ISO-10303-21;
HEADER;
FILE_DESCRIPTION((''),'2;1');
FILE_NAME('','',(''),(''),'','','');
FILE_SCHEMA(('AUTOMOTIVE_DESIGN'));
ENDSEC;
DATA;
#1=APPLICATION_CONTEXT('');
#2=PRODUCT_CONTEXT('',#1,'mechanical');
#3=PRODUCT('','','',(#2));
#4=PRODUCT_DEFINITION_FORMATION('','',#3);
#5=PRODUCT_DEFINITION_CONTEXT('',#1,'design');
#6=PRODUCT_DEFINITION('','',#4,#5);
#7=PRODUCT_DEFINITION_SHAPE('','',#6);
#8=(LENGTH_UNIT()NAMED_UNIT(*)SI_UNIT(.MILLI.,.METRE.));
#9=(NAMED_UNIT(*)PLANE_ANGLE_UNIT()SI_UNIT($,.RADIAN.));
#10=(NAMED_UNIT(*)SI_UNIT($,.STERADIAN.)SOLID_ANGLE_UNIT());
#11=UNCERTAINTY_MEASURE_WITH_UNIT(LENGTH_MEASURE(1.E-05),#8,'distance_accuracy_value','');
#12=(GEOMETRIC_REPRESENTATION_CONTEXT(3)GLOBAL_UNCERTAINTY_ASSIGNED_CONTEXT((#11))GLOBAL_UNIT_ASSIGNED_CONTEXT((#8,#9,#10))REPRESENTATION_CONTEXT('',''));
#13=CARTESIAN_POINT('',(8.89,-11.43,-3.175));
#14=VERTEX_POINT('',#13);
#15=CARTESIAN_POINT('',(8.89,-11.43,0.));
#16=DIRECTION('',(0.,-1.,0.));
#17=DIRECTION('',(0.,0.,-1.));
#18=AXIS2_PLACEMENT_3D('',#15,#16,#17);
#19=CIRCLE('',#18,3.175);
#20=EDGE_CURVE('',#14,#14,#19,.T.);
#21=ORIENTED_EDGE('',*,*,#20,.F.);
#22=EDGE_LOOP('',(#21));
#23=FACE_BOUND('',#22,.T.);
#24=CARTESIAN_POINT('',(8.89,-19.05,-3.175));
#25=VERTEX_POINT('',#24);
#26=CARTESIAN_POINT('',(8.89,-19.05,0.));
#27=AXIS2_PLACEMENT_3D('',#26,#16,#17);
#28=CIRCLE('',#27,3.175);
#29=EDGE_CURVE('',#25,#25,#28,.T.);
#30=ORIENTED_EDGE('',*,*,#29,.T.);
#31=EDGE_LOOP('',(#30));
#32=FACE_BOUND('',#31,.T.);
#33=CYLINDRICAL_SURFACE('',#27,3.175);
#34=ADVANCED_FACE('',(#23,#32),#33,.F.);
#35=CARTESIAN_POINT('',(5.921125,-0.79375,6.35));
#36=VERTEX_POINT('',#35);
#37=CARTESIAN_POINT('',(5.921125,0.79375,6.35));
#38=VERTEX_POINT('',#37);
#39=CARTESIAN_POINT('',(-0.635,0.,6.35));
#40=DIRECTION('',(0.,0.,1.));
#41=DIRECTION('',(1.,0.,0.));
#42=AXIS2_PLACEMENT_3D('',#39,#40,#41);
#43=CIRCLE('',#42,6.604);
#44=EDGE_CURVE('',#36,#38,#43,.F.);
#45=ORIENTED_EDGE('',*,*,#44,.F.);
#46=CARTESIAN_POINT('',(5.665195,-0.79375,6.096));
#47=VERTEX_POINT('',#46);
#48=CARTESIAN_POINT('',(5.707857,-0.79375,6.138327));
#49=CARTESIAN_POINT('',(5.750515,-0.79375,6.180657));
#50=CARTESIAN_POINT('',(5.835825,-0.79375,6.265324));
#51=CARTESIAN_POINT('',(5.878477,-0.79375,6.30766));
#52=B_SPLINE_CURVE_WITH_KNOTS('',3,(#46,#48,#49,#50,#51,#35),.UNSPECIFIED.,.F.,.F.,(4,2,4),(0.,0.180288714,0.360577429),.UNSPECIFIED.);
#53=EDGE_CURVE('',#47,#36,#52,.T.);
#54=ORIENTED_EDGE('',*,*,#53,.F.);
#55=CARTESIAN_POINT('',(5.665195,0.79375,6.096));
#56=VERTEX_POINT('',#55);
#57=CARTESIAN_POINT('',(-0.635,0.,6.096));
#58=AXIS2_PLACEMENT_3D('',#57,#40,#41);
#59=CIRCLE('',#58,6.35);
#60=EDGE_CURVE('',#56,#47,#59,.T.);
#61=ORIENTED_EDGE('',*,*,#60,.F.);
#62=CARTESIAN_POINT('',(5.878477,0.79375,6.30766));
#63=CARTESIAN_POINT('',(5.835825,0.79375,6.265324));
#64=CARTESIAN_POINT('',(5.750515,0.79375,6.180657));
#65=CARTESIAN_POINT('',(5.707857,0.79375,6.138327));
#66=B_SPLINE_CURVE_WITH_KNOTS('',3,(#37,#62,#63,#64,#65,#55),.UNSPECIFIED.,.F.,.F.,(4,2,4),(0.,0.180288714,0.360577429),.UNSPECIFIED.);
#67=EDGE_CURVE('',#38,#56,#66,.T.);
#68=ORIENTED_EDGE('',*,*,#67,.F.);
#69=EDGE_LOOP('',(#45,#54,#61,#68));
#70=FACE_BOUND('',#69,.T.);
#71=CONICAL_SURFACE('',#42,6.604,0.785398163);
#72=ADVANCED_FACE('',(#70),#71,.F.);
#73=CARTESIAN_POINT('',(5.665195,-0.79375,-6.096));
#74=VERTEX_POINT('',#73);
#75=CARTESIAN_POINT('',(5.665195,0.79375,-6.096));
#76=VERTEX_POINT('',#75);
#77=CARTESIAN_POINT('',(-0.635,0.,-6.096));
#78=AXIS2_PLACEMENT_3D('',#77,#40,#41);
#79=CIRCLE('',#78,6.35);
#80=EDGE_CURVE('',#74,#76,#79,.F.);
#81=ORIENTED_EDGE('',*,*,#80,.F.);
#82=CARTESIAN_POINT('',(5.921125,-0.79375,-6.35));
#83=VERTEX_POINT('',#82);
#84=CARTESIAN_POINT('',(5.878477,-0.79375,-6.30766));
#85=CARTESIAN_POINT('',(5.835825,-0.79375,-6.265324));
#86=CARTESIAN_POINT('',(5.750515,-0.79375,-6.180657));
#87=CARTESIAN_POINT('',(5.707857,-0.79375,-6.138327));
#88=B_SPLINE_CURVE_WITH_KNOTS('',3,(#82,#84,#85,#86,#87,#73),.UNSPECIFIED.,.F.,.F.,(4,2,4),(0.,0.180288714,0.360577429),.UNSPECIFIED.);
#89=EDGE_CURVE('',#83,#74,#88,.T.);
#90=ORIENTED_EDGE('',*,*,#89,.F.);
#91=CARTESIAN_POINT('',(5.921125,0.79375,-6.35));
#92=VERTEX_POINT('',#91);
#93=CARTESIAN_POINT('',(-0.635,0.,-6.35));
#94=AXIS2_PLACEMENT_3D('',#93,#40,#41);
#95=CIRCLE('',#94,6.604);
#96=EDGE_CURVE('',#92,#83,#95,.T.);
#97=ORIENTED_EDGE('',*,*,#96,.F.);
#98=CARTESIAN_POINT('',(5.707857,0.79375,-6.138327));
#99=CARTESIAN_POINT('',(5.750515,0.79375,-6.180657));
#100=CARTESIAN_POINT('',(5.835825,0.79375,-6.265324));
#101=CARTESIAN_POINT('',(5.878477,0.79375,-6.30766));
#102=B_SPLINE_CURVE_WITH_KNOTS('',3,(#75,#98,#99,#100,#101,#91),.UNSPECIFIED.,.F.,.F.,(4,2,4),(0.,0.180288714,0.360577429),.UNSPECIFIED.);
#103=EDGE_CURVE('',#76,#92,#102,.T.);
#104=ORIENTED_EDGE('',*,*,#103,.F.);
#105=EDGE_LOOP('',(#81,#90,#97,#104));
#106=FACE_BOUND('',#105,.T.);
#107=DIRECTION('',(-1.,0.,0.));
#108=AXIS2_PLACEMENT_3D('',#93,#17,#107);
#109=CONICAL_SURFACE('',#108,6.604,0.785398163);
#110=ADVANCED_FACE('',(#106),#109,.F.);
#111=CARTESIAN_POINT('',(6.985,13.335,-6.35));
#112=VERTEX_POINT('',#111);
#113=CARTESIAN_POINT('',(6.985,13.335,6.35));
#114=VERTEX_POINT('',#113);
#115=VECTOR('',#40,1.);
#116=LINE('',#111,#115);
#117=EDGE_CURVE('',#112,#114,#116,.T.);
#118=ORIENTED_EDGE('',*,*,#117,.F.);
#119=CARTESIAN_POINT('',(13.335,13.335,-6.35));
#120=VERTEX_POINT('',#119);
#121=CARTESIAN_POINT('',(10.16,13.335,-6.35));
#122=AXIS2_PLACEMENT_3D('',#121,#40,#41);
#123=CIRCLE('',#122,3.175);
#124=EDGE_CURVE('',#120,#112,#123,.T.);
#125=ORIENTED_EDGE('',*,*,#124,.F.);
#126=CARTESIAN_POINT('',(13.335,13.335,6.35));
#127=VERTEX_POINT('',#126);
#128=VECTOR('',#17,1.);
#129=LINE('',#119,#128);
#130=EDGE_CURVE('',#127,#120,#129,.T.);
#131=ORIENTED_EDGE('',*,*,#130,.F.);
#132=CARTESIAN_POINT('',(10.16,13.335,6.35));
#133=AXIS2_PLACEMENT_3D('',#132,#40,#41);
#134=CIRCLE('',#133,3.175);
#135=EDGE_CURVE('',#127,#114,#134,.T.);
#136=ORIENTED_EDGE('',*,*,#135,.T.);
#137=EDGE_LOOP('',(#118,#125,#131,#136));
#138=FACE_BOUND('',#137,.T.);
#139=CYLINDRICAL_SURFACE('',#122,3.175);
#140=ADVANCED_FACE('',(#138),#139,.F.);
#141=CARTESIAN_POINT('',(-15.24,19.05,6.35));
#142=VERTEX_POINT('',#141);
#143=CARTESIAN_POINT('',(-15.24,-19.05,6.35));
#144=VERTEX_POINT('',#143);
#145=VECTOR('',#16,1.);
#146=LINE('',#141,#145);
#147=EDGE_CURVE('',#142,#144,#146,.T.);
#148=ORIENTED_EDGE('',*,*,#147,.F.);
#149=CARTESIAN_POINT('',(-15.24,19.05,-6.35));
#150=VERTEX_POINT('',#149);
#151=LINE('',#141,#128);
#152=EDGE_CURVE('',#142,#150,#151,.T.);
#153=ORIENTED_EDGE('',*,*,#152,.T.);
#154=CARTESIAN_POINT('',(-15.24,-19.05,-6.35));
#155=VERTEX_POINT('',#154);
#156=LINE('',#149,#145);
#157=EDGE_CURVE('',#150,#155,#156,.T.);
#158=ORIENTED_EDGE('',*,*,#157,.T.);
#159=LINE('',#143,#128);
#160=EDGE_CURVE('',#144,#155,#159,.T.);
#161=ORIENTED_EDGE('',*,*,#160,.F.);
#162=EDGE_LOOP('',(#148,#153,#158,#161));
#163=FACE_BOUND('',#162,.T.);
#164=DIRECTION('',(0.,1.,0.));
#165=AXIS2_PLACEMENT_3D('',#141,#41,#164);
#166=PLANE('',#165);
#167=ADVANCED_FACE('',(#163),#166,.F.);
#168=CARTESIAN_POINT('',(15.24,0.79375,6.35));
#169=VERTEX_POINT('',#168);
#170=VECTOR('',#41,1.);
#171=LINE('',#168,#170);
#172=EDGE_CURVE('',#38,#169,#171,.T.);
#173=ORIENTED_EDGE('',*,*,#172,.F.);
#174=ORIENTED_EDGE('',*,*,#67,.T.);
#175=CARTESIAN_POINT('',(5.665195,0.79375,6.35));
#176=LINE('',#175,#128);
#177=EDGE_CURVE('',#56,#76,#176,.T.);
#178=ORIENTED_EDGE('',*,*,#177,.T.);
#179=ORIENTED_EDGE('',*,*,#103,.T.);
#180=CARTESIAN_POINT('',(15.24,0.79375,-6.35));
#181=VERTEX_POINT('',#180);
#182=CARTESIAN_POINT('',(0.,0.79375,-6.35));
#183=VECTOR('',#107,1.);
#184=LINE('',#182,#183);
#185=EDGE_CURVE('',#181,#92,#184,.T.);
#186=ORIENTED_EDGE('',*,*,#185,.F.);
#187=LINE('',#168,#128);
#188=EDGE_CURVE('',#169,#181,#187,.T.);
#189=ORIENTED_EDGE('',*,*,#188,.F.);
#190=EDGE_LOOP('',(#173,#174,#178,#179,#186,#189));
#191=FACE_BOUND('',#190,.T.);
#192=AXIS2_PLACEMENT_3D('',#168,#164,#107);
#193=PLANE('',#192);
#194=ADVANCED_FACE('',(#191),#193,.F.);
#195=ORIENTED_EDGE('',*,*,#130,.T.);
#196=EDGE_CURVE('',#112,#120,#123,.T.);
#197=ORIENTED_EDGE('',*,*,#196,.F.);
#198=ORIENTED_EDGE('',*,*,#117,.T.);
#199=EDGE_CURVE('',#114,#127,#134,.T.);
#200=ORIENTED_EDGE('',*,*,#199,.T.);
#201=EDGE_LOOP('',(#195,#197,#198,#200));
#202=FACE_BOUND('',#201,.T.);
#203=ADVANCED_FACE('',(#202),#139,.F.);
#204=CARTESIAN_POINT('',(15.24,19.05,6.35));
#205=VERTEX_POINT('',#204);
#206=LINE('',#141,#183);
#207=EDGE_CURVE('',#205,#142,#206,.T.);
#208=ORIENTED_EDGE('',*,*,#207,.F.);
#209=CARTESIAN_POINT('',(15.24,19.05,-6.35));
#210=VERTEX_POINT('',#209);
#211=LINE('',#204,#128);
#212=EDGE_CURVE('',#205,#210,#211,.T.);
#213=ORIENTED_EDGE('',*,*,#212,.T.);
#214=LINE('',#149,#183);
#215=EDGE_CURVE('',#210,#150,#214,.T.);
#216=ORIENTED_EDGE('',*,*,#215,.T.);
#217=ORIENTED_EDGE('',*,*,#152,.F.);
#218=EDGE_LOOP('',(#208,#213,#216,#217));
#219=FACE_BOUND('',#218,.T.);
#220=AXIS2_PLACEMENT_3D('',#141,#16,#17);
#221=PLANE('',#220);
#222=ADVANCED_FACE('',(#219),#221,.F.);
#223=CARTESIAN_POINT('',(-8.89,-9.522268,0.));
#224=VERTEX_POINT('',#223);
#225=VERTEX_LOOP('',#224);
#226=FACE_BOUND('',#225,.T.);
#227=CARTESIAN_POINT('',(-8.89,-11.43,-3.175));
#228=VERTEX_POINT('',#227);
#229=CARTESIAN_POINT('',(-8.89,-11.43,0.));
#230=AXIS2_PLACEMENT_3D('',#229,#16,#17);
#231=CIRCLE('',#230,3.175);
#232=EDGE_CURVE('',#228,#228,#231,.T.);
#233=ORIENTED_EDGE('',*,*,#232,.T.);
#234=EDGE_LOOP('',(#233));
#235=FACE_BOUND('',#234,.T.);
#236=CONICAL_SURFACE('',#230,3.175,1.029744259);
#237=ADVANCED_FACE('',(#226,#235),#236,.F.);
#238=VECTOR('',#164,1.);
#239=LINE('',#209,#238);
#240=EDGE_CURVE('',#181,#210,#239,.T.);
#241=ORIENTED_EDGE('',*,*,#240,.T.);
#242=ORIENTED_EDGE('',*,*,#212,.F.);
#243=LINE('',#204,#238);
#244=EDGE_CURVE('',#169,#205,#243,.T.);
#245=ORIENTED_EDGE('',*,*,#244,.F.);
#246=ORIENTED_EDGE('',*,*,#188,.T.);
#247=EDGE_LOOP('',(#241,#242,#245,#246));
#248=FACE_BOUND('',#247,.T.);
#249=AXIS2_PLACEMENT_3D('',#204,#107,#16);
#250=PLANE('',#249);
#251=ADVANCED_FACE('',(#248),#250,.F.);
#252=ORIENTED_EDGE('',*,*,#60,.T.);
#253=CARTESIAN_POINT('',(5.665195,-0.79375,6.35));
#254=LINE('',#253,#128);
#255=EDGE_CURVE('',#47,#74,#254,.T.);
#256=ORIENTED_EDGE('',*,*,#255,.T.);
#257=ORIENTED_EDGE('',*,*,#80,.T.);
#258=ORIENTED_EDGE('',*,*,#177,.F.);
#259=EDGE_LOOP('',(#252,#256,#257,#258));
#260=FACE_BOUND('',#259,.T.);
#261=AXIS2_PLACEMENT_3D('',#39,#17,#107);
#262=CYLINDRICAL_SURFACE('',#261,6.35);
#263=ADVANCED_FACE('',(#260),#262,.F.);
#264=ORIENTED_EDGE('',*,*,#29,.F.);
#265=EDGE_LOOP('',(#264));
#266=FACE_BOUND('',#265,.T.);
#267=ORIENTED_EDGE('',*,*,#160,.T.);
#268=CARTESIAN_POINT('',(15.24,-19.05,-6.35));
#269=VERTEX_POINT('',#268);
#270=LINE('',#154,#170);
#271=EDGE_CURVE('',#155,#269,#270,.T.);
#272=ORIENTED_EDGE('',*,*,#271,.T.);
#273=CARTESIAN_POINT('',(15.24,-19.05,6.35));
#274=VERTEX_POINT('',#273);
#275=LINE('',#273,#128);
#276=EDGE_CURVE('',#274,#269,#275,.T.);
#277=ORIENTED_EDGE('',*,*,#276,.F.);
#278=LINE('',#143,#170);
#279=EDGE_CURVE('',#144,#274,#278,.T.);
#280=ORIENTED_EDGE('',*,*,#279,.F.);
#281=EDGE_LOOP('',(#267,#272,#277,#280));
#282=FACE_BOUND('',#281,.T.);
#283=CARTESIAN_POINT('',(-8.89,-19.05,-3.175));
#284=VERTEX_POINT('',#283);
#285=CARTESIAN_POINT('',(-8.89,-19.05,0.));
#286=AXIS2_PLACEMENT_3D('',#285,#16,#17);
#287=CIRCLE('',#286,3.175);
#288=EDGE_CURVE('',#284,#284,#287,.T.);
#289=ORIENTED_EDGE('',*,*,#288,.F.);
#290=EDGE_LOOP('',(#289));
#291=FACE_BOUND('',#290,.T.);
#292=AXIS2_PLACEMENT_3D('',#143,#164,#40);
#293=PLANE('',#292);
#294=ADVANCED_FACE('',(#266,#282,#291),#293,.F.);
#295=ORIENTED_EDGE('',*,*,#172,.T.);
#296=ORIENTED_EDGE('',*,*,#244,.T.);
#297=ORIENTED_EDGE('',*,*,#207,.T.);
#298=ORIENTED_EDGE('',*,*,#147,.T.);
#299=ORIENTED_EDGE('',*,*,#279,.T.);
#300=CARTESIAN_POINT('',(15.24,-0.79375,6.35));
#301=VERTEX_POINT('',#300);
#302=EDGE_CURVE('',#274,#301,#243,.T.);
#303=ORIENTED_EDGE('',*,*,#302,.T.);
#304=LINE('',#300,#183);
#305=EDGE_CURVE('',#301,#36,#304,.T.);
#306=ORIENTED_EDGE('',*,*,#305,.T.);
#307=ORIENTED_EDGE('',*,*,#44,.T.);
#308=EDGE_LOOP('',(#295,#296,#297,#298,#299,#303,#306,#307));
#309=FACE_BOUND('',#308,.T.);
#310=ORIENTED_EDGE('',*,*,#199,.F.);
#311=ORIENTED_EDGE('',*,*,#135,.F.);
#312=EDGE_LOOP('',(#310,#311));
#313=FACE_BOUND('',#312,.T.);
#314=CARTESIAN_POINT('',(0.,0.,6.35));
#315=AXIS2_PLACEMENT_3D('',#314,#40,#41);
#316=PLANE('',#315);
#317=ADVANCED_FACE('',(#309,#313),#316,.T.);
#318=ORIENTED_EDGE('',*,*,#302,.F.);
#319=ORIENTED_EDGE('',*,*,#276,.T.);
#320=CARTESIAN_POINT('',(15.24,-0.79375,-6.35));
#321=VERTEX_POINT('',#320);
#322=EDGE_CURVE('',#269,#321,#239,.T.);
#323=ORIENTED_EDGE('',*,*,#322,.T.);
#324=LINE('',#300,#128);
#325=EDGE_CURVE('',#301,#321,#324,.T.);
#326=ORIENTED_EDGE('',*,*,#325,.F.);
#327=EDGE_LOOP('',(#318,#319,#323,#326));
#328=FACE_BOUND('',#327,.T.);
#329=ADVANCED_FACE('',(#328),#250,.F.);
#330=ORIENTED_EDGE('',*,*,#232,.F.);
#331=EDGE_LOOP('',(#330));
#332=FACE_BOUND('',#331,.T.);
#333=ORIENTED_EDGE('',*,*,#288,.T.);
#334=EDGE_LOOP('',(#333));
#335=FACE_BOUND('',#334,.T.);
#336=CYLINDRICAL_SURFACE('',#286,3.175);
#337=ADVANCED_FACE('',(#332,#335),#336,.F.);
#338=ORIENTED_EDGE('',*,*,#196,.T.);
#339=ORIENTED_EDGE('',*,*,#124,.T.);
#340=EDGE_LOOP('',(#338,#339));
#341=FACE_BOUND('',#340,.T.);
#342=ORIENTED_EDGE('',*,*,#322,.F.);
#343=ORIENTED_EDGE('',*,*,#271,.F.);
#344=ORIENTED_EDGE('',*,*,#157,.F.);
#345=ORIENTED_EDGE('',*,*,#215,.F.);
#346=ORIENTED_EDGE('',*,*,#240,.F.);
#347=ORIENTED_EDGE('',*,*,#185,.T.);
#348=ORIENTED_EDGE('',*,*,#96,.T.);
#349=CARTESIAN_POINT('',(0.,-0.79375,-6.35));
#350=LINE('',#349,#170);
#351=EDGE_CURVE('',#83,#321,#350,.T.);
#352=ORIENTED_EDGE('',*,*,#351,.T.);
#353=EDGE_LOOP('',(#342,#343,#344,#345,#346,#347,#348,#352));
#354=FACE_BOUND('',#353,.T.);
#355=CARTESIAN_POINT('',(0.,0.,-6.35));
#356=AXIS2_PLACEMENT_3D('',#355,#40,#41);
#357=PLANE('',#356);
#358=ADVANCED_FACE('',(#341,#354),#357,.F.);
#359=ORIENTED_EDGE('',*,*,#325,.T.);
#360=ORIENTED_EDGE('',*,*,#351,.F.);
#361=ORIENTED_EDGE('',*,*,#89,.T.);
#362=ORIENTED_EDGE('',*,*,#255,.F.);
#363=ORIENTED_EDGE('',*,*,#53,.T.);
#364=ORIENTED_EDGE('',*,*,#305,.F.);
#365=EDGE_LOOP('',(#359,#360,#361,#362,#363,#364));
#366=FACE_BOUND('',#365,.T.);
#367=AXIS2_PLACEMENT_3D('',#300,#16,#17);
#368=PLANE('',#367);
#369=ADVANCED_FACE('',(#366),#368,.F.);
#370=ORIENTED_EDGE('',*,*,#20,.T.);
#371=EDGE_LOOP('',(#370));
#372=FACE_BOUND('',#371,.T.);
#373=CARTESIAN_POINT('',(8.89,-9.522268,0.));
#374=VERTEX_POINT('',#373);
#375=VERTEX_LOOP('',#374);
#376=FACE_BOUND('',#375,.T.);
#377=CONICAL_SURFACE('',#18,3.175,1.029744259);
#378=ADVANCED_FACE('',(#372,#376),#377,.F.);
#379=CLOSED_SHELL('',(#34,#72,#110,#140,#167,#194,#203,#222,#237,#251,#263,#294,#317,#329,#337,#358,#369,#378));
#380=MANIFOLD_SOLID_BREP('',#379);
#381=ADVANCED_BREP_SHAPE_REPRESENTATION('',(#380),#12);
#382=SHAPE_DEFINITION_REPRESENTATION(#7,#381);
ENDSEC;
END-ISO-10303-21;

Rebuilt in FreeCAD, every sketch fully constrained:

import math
import FreeCAD as App
import Part
import Sketcher
from FreeCAD import Vector
Q = App.Units.Quantity


def edges_at(feature, points):
    """Names of the edges that pass closest to the given points."""
    edges = feature.Shape.Edges
    near = lambda p: min(range(len(edges)), key=lambda i: edges[i].distToShape(Part.Vertex(*p))[0])
    return sorted({f"Edge{near(p) + 1}" for p in points})


def add_polygon(sketch, points):
    """Adds a closed chain of lines whose ends are joined by coincident constraints."""
    first, n = sketch.GeometryCount, len(points)
    for a, b in zip(points, points[1:] + points[:1]):
        sketch.addGeometry(Part.LineSegment(App.Vector(*a, 0), App.Vector(*b, 0)), False)
    for i in range(n):
        sketch.addConstraint(Sketcher.Constraint("Coincident", first + i, 2, first + (i + 1) % n, 1))

doc = App.newDocument("Part")
body = doc.addObject("PartDesign::Body", "Body")

# Sketch on XY plane
sketch1 = body.newObject("Sketcher::SketchObject", "Sketch")
sketch1.AttachmentSupport = (doc.getObject("XY_Plane"), [""])
sketch1.MapMode = "FlatFace"
add_polygon(sketch1, [(-15.24, 19.05), (-15.24, -19.05), (15.24, -19.05), (15.24, 19.05)])  # lines 0-3
sketch1.addConstraint([
    Sketcher.Constraint("Vertical", 0),
    Sketcher.Constraint("Horizontal", 1),
    Sketcher.Constraint("Vertical", 2),
    Sketcher.Constraint("Horizontal", 3),
    Sketcher.Constraint("Symmetric", 0, 2, 2, 2, -1, 1),
    Sketcher.Constraint("DistanceX", 1, 1, 1, 2, Q("1.2 in")),
    Sketcher.Constraint("DistanceY", 0, 2, 0, 1, Q("1.5 in")),
])
pad1 = body.newObject("PartDesign::Pad", "Pad")
pad1.Profile = sketch1
pad1.Length = Q("0.5 in")
pad1.Midplane = True

# Sketch on XY plane
sketch2 = body.newObject("Sketcher::SketchObject", "Sketch001")
sketch2.AttachmentSupport = (doc.getObject("XY_Plane"), [""])
sketch2.MapMode = "FlatFace"
sketch2.AttachmentOffset = App.Placement(Vector(0, 0, 0.25 * 25.4), App.Rotation())
sketch2.addGeometry([
    Part.ArcOfCircle(Part.Circle(Vector(-0.635, 0, 0), Vector(0, 0, 1), 6.35), math.radians(7.180756), math.radians(352.819244)),
    Part.LineSegment(Vector(5.665195, -0.79375, 0), Vector(263.462302, -0.79375, 0)),
    Part.LineSegment(Vector(263.462302, -0.79375, 0), Vector(263.462302, 0.79375, 0)),
    Part.LineSegment(Vector(263.462302, 0.79375, 0), Vector(5.665195, 0.79375, 0)),
], False)
sketch2.addConstraint([
    Sketcher.Constraint("Coincident", 0, 2, 1, 1),
    Sketcher.Constraint("Coincident", 1, 2, 2, 1),
    Sketcher.Constraint("Coincident", 2, 2, 3, 1),
    Sketcher.Constraint("Coincident", 3, 2, 0, 1),
    Sketcher.Constraint("Horizontal", 1),
    Sketcher.Constraint("Vertical", 2),
    Sketcher.Constraint("Horizontal", 3),
    Sketcher.Constraint("Symmetric", 0, 2, 3, 2, -1),
    Sketcher.Constraint("Radius", 0, Q("0.25 in")),
    Sketcher.Constraint("DistanceY", 2, 1, 2, 2, Q("0.0625 in")),
    Sketcher.Constraint("DistanceX", 0, 3, -1, 1, Q("0.025 in")),
    Sketcher.Constraint("DistanceX", 1, 1, 1, 2, 257.797107),
])
pocket1 = body.newObject("PartDesign::Pocket", "Pocket")
pocket1.Profile = sketch2
pocket1.Type = "ThroughAll"

# Sketch on YZ plane
sketch3 = body.newObject("Sketcher::SketchObject", "Sketch002")
sketch3.AttachmentSupport = (doc.getObject("YZ_Plane"), [""])
sketch3.MapMode = "FlatFace"
sketch3.AttachmentOffset = App.Placement(Vector(0, 0, 0.35 * 25.4), App.Rotation())
add_polygon(sketch3, [(-9.522268, 0), (-19.05, 0), (-19.05, -3.175), (-11.43, -3.175)])  # lines 0-3
sketch3.addConstraint([
    Sketcher.Constraint("Horizontal", 0),
    Sketcher.Constraint("Vertical", 1),
    Sketcher.Constraint("Horizontal", 2),
    Sketcher.Constraint("PointOnObject", 0, 2, -1),
    Sketcher.Constraint("DistanceX", 2, 1, 2, 2, Q("0.3 in")),
    Sketcher.Constraint("Angle", 3, Q("59 deg")),
    Sketcher.Constraint("DistanceY", 1, 2, 1, 1, Q("0.125 in")),
    Sketcher.Constraint("DistanceX", 0, 2, -1, 1, Q("0.75 in")),
])
groove = body.newObject("PartDesign::Groove", "Groove")
groove.Profile = sketch3
groove.ReferenceAxis = (sketch3, ["H_Axis"])
groove.Angle = 360
doc.recompute()

chamfer = body.newObject("PartDesign::Chamfer", "Chamfer")
chamfer.Base = (groove, edges_at(groove, [(-6.985, 0, -6.35), (-6.985, 0, 6.35)]))
chamfer.Size = Q("0.01 in")
doc.recompute()

mirrored = body.newObject("PartDesign::Mirrored", "Mirrored")
mirrored.Originals = [groove]
mirrored.MirrorPlane = (doc.getObject("YZ_Plane"), [""])
body.Tip = mirrored

# Sketch on XY plane
sketch4 = body.newObject("Sketcher::SketchObject", "Sketch003")
sketch4.AttachmentSupport = (doc.getObject("XY_Plane"), [""])
sketch4.MapMode = "FlatFace"
sketch4.AttachmentOffset = App.Placement(Vector(0, 0, 0.25 * 25.4), App.Rotation())
sketch4.addGeometry(Part.Circle(Vector(10.16, 13.335, 0), Vector(0, 0, 1), 3.175), False)
sketch4.addConstraint([
    Sketcher.Constraint("Diameter", 0, Q("0.25 in")),
    Sketcher.Constraint("DistanceX", -1, 1, 0, 3, Q("0.4 in")),
    Sketcher.Constraint("DistanceY", -1, 1, 0, 3, Q("0.525 in")),
])
pocket2 = body.newObject("PartDesign::Pocket", "Pocket001")
pocket2.Profile = sketch4
pocket2.Type = "ThroughAll"

doc.recompute()
